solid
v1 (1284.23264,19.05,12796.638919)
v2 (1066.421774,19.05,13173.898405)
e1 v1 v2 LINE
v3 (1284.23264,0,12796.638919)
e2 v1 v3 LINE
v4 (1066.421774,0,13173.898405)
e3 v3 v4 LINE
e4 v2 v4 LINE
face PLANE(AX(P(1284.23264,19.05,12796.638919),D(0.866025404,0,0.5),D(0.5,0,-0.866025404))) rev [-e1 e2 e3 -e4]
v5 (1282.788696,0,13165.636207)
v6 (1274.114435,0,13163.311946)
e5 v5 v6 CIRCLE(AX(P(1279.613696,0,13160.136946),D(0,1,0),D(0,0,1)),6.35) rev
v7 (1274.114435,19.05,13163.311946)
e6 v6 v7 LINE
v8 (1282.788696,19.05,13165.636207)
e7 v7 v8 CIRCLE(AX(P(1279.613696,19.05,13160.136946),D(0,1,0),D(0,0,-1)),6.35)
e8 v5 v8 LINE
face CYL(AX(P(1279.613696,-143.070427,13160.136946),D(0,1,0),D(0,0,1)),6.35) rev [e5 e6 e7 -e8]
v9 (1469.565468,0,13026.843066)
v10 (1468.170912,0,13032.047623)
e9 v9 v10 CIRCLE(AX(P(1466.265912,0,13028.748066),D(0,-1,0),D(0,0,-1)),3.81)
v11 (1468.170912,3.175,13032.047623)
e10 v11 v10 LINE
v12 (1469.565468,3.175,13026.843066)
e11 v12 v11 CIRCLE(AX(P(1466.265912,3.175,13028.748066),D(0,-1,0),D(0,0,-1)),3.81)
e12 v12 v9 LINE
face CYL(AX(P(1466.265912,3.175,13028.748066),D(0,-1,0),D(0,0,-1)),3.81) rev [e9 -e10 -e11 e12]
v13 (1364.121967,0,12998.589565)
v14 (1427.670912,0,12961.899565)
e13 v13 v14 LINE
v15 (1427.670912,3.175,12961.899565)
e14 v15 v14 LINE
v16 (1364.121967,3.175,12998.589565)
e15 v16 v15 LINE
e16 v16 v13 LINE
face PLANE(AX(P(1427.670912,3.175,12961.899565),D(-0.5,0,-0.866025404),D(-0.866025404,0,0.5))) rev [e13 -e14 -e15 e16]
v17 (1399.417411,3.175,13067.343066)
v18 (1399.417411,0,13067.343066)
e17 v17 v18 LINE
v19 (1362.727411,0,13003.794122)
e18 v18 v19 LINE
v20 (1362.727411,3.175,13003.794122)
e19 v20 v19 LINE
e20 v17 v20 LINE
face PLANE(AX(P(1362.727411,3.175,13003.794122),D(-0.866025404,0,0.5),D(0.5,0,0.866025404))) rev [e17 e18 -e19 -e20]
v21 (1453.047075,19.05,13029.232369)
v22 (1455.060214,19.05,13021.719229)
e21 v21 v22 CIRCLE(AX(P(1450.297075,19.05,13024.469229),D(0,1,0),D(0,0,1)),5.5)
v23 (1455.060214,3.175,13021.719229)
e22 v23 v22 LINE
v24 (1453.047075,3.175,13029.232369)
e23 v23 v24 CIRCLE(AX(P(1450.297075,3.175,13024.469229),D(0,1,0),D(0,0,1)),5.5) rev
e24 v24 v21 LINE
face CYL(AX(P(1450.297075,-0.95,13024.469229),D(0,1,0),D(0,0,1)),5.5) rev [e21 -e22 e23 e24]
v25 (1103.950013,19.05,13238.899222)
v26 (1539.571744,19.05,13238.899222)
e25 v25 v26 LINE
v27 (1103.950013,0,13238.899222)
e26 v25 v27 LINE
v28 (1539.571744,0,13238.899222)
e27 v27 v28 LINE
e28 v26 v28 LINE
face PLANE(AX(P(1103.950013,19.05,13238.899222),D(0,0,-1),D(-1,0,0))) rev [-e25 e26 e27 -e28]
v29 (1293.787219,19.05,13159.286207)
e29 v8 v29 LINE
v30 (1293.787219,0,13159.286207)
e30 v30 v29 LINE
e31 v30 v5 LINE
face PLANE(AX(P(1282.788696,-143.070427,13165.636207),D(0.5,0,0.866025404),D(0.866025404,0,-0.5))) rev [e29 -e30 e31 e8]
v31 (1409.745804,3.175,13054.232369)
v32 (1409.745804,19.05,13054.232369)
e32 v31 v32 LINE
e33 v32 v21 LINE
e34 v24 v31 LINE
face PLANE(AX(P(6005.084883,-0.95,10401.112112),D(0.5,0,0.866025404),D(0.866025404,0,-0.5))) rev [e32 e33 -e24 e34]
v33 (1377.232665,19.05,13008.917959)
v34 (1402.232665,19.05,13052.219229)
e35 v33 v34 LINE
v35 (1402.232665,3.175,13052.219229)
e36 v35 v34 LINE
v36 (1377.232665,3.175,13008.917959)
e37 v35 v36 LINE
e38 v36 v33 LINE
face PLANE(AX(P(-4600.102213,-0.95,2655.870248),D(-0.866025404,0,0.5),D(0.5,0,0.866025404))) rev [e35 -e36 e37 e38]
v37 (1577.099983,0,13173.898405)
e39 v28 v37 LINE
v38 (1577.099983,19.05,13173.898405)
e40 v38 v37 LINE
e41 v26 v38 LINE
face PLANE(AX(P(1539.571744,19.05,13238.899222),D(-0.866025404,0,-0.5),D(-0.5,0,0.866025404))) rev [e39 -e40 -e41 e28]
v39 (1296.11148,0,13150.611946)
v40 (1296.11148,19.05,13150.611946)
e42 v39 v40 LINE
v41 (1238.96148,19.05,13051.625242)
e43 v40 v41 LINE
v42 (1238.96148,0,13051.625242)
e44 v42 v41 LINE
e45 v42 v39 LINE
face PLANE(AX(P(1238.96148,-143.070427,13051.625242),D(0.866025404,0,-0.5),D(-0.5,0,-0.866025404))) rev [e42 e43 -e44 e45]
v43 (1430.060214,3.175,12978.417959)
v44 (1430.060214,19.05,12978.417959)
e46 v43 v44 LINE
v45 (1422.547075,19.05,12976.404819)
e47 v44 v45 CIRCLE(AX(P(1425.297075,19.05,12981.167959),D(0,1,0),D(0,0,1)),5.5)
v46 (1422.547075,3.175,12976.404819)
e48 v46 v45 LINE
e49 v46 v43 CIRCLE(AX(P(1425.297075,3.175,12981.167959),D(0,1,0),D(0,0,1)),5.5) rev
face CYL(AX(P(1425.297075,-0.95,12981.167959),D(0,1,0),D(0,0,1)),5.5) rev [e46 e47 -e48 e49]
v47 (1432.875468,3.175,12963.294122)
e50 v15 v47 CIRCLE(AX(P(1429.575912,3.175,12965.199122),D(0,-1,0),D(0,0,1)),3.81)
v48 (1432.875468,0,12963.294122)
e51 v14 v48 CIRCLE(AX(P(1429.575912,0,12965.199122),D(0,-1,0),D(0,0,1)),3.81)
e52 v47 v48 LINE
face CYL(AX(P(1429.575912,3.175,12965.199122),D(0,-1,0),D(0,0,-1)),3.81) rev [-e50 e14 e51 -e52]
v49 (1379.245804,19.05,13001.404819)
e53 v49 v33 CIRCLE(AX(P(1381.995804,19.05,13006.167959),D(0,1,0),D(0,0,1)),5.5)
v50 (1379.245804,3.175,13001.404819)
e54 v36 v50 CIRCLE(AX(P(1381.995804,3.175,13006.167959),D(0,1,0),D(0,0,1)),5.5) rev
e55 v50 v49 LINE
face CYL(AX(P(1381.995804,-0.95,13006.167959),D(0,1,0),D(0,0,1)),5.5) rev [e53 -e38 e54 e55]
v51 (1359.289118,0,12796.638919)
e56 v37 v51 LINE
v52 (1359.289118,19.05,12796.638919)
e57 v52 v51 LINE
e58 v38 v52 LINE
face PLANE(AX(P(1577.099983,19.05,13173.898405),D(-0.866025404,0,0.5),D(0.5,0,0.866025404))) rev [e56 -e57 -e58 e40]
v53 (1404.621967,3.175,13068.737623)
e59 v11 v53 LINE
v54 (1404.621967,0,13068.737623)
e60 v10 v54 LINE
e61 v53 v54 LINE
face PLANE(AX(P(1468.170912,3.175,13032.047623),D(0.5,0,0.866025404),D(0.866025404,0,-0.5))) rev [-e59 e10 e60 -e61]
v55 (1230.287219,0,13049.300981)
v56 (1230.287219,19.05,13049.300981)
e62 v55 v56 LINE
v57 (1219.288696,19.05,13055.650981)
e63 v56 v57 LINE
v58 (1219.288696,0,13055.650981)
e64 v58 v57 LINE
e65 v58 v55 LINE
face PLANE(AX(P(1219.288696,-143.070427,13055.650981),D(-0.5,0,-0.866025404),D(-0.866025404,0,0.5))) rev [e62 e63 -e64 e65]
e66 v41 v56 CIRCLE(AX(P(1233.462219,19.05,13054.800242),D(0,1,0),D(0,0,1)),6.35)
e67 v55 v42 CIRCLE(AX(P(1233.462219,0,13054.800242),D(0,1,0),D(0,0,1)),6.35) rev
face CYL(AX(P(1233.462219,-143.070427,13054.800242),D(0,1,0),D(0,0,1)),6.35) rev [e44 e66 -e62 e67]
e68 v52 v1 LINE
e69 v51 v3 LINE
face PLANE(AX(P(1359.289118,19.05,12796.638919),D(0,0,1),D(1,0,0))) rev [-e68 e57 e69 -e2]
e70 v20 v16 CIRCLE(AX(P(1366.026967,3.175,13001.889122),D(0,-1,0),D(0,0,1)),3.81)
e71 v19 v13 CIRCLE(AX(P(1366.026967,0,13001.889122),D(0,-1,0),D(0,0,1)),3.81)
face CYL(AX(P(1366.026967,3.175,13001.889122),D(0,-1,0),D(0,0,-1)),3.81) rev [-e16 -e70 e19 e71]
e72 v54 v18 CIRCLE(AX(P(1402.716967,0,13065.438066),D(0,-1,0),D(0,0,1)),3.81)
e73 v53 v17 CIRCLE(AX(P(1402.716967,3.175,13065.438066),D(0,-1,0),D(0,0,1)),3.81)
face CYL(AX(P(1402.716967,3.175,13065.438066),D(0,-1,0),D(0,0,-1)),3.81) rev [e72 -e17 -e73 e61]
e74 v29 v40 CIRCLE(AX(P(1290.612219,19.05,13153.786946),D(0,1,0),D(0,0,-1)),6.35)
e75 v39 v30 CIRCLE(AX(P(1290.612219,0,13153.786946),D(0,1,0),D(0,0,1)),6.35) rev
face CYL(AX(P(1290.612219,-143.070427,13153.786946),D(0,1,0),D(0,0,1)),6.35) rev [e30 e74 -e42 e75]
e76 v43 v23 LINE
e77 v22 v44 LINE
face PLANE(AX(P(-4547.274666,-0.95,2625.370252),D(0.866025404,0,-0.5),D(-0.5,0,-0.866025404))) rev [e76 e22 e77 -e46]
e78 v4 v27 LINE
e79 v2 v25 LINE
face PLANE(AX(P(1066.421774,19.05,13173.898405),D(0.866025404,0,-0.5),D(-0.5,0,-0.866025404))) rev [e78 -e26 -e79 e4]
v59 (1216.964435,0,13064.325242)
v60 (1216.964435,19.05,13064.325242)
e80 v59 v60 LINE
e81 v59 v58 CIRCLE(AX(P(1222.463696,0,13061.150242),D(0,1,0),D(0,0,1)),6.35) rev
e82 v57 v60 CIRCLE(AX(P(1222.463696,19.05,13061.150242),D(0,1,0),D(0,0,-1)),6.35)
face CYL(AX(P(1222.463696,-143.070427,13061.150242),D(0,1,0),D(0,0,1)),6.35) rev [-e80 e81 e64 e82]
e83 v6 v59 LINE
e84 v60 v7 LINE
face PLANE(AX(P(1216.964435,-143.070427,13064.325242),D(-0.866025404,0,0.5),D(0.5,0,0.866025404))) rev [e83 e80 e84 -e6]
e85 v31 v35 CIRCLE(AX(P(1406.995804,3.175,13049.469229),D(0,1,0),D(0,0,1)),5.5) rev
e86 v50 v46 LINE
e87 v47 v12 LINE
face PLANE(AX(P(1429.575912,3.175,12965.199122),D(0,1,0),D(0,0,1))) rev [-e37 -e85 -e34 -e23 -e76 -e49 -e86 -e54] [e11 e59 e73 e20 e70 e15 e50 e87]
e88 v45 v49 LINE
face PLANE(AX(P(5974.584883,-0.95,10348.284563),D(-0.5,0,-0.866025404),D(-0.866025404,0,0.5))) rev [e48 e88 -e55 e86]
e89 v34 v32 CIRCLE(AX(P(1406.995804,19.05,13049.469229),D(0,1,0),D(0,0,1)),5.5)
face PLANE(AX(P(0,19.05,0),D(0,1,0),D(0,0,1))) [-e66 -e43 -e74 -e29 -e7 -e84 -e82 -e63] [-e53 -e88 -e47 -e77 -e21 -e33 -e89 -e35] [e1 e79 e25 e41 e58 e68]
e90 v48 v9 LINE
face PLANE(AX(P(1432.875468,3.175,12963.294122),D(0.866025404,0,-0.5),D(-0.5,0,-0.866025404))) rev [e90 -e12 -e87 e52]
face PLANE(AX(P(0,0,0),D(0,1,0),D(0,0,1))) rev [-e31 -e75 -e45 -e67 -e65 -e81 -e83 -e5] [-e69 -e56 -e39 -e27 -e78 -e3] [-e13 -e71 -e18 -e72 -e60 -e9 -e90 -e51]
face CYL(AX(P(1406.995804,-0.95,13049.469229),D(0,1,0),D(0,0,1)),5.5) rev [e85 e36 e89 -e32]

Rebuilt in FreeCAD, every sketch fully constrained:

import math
import FreeCAD as App
import Part
import Sketcher

V = App.Vector
Q = App.Units.Quantity

doc = App.newDocument("Part")
params = doc.addObject("Spreadsheet::Sheet", "Params")
for row, (alias, value) in enumerate([
    ("pad1_length", "0.75 in"),
    ("pocket1_length", "20 mm"),
    ("sketch3_radius", "0.15 in"),
    ("pocket2_length", "0.125 in"),
    ("sketch4_radius", "0.25 in"),
    ("sketch4_length", "4.5 in"),
    ("sketch4_length2", "0.5 in"),
    ("pocket3_length", "0.75 in"),
], start=1):
    params.set(f"A{row}", alias)
    params.set(f"B{row}", "=" + value)
    params.setAlias(f"B{row}", alias)

body = doc.addObject("PartDesign::Body", "Body")

# Sketch on XZ plane
sketch1 = body.newObject("Sketcher::SketchObject", "Sketch")
sketch1.AttachmentSupport = (doc.getObject("XZ_Plane"), [""])
sketch1.MapMode = "FlatFace"
sketch1.addGeometry(Part.LineSegment(V(1359, 12797, 0), V(1284, 12797, 0)), False)
sketch1.addGeometry(Part.LineSegment(V(1284, 12797, 0), V(1066, 13174, 0)), False)
sketch1.addGeometry(Part.LineSegment(V(1066, 13174, 0), V(1104, 13239, 0)), False)
sketch1.addGeometry(Part.LineSegment(V(1104, 13239, 0), V(1540, 13239, 0)), False)
sketch1.addGeometry(Part.LineSegment(V(1540, 13239, 0), V(1577, 13174, 0)), False)
sketch1.addGeometry(Part.LineSegment(V(1577, 13174, 0), V(1359, 12797, 0)), False)
sketch1.addConstraint(Sketcher.Constraint("Coincident", 0, 2, 1, 1))
sketch1.addConstraint(Sketcher.Constraint("Coincident", 1, 2, 2, 1))
sketch1.addConstraint(Sketcher.Constraint("Coincident", 2, 2, 3, 1))
sketch1.addConstraint(Sketcher.Constraint("Coincident", 3, 2, 4, 1))
sketch1.addConstraint(Sketcher.Constraint("Coincident", 4, 2, 5, 1))
sketch1.addConstraint(Sketcher.Constraint("Coincident", 5, 2, 0, 1))
sketch1.addConstraint(Sketcher.Constraint("Horizontal", 0))
sketch1.addConstraint(Sketcher.Constraint("Horizontal", 3))
sketch1.addConstraint(Sketcher.Constraint("Parallel", 1, 4))
sketch1.addConstraint(Sketcher.Constraint("Parallel", 2, 5))
sketch1.addConstraint(Sketcher.Constraint("Horizontal", 1, 2, 4, 2))
sketch1.addConstraint(Sketcher.Constraint("Equal", 2, 4))
sketch1.addConstraint(Sketcher.Constraint("Angle", 1, Q("120 deg")))
sketch1.addConstraint(Sketcher.Constraint("DistanceX", 0, 2, 0, 1, Q("75.056478 mm")))
sketch1.addConstraint(Sketcher.Constraint("DistanceX", 3, 1, 3, 2, Q("435.621731 mm")))
sketch1.addConstraint(Sketcher.Constraint("Distance", 1, Q("435.621731 mm")))
sketch1.addConstraint(Sketcher.Constraint("DistanceX", -1, 1, 0, 2, Q("1284.23264 mm")))
sketch1.addConstraint(Sketcher.Constraint("DistanceY", -1, 1, 0, 2, Q("12796.638919 mm")))
pad1 = body.newObject("PartDesign::Pad", "Pad")
pad1.Profile = sketch1
pad1.setExpression("Length", "Params.pad1_length")
pad1.Reversed = True

# Sketch on XZ plane
sketch2 = body.newObject("Sketcher::SketchObject", "Sketch001")
sketch2.AttachmentSupport = (doc.getObject("XZ_Plane"), [""])
sketch2.MapMode = "FlatFace"
sketch2.AttachmentOffset = App.Placement(V(0, 0, -0.75 * 25.4), App.Rotation())
sketch2.addGeometry(Part.LineSegment(V(1377, 13009, 0), V(1402, 13052, 0)), False)
sketch2.addGeometry(Part.ArcOfCircle(Part.Circle(V(1407, 13049, 0), V(0, 0, 1), 5), math.radians(60), math.radians(150)), False)
sketch2.addGeometry(Part.LineSegment(V(1410, 13054, 0), V(1453, 13029, 0)), False)
sketch2.addGeometry(Part.ArcOfCircle(Part.Circle(V(1450, 13024, 0), V(0, 0, 1), 5), math.radians(-30), math.radians(60)), False)
sketch2.addGeometry(Part.LineSegment(V(1455, 13022, 0), V(1430, 12978, 0)), False)
sketch2.addGeometry(Part.ArcOfCircle(Part.Circle(V(1425, 12981, 0), V(0, 0, 1), 5), math.radians(-120), math.radians(-30)), False)
sketch2.addGeometry(Part.LineSegment(V(1423, 12976, 0), V(1379, 13001, 0)), False)
sketch2.addGeometry(Part.ArcOfCircle(Part.Circle(V(1382, 13006, 0), V(0, 0, 1), 5), math.radians(150), math.radians(240)), False)
sketch2.addConstraint(Sketcher.Constraint("Tangent", 0, 2, 1, 2))
sketch2.addConstraint(Sketcher.Constraint("Tangent", 1, 1, 2, 1))
sketch2.addConstraint(Sketcher.Constraint("Tangent", 2, 2, 3, 2))
sketch2.addConstraint(Sketcher.Constraint("Tangent", 3, 1, 4, 1))
sketch2.addConstraint(Sketcher.Constraint("Tangent", 4, 2, 5, 2))
sketch2.addConstraint(Sketcher.Constraint("Tangent", 5, 1, 6, 1))
sketch2.addConstraint(Sketcher.Constraint("Tangent", 6, 2, 7, 2))
sketch2.addConstraint(Sketcher.Constraint("Tangent", 7, 1, 0, 1))
sketch2.addConstraint(Sketcher.Constraint("Equal", 1, 3))
sketch2.addConstraint(Sketcher.Constraint("Equal", 3, 5))
sketch2.addConstraint(Sketcher.Constraint("Equal", 5, 7))
sketch2.addConstraint(Sketcher.Constraint("Perpendicular", 0, 2))
sketch2.addConstraint(Sketcher.Constraint("Perpendicular", 2, 4))
sketch2.addConstraint(Sketcher.Constraint("Perpendicular", 4, 6))
sketch2.addConstraint(Sketcher.Constraint("Equal", 0, 2))
sketch2.addConstraint(Sketcher.Constraint("Angle", 0, Q("60 deg")))
sketch2.addConstraint(Sketcher.Constraint("Radius", 1, Q("5.5 mm")))
sketch2.addConstraint(Sketcher.Constraint("Distance", 0, Q("50 mm")))
sketch2.addConstraint(Sketcher.Constraint("DistanceY", -1, 1, 1, 3, Q("13049.469229 mm")))
sketch2.addConstraint(Sketcher.Constraint("DistanceX", -1, 1, 1, 3, Q("1406.995804 mm")))
pocket1 = body.newObject("PartDesign::Pocket", "Pocket")
pocket1.Profile = sketch2
pocket1.setExpression("Length", "Params.pocket1_length")
pocket1.Reversed = True

# Sketch on XZ plane
sketch3 = body.newObject("Sketcher::SketchObject", "Sketch002")
sketch3.AttachmentSupport = (doc.getObject("XZ_Plane"), [""])
sketch3.MapMode = "FlatFace"
sketch3.addGeometry(Part.LineSegment(V(1364.1, 12998.6, 0), V(1427.7, 12961.9, 0)), False)
sketch3.addGeometry(Part.ArcOfCircle(Part.Circle(V(1429.6, 12965.2, 0), V(0, 0, 1), 3.8), math.radians(-120), math.radians(-30)), False)
sketch3.addGeometry(Part.LineSegment(V(1432.9, 12963.3, 0), V(1469.6, 13026.8, 0)), False)
sketch3.addGeometry(Part.ArcOfCircle(Part.Circle(V(1466.3, 13028.7, 0), V(0, 0, 1), 3.8), math.radians(-30), math.radians(60)), False)
sketch3.addGeometry(Part.LineSegment(V(1468.2, 13032, 0), V(1404.6, 13068.7, 0)), False)
sketch3.addGeometry(Part.ArcOfCircle(Part.Circle(V(1402.7, 13065.4, 0), V(0, 0, 1), 3.8), math.radians(60), math.radians(150)), False)
sketch3.addGeometry(Part.LineSegment(V(1399.4, 13067.3, 0), V(1362.7, 13003.8, 0)), False)
sketch3.addGeometry(Part.ArcOfCircle(Part.Circle(V(1366, 13001.9, 0), V(0, 0, 1), 3.8), math.radians(150), math.radians(240)), False)
sketch3.addConstraint(Sketcher.Constraint("Tangent", 0, 2, 1, 1))
sketch3.addConstraint(Sketcher.Constraint("Tangent", 1, 2, 2, 1))
sketch3.addConstraint(Sketcher.Constraint("Tangent", 2, 2, 3, 1))
sketch3.addConstraint(Sketcher.Constraint("Tangent", 3, 2, 4, 1))
sketch3.addConstraint(Sketcher.Constraint("Tangent", 4, 2, 5, 1))
sketch3.addConstraint(Sketcher.Constraint("Tangent", 5, 2, 6, 1))
sketch3.addConstraint(Sketcher.Constraint("Tangent", 6, 2, 7, 1))
sketch3.addConstraint(Sketcher.Constraint("Tangent", 7, 2, 0, 1))
sketch3.addConstraint(Sketcher.Constraint("Equal", 1, 3))
sketch3.addConstraint(Sketcher.Constraint("Equal", 3, 5))
sketch3.addConstraint(Sketcher.Constraint("Equal", 5, 7))
sketch3.addConstraint(Sketcher.Constraint("Perpendicular", 0, 2))
sketch3.addConstraint(Sketcher.Constraint("Perpendicular", 2, 4))
sketch3.addConstraint(Sketcher.Constraint("Perpendicular", 4, 6))
sketch3.addConstraint(Sketcher.Constraint("Equal", 0, 2))
sketch3.addConstraint(Sketcher.Constraint("Radius", 1, Q("0.15 in")))
sketch3.addConstraint(Sketcher.Constraint("Angle", 0, Q("-30 deg")))
sketch3.addConstraint(Sketcher.Constraint("Distance", 0, Q("73.38 mm")))
sketch3.addConstraint(Sketcher.Constraint("DistanceX", -1, 1, 1, 3, Q("1429.575912 mm")))
sketch3.addConstraint(Sketcher.Constraint("DistanceY", -1, 1, 1, 3, Q("12965.199122 mm")))
sketch3.setExpression("Constraints[15]", "Params.sketch3_radius")
pocket2 = body.newObject("PartDesign::Pocket", "Pocket001")
pocket2.Profile = sketch3
pocket2.setExpression("Length", "Params.pocket2_length")

# Sketch on XZ plane
sketch4 = body.newObject("Sketcher::SketchObject", "Sketch003")
sketch4.AttachmentSupport = (doc.getObject("XZ_Plane"), [""])
sketch4.MapMode = "FlatFace"
sketch4.AttachmentOffset = App.Placement(V(0, 0, -0.75 * 25.4), App.Rotation())
sketch4.addGeometry(Part.LineSegment(V(1217, 13064, 0), V(1274, 13163, 0)), False)
sketch4.addGeometry(Part.ArcOfCircle(Part.Circle(V(1280, 13160, 0), V(0, 0, 1), 6), math.radians(60), math.radians(150)), False)
sketch4.addGeometry(Part.LineSegment(V(1283, 13166, 0), V(1294, 13159, 0)), False)
sketch4.addGeometry(Part.ArcOfCircle(Part.Circle(V(1291, 13154, 0), V(0, 0, 1), 6), math.radians(-30), math.radians(60)), False)
sketch4.addGeometry(Part.LineSegment(V(1296, 13151, 0), V(1239, 13052, 0)), False)
sketch4.addGeometry(Part.ArcOfCircle(Part.Circle(V(1233, 13055, 0), V(0, 0, 1), 6), math.radians(-120), math.radians(-30)), False)
sketch4.addGeometry(Part.LineSegment(V(1230, 13049, 0), V(1219, 13056, 0)), False)
sketch4.addGeometry(Part.ArcOfCircle(Part.Circle(V(1222, 13061, 0), V(0, 0, 1), 6), math.radians(150), math.radians(240)), False)
sketch4.addConstraint(Sketcher.Constraint("Tangent", 0, 2, 1, 2))
sketch4.addConstraint(Sketcher.Constraint("Tangent", 1, 1, 2, 1))
sketch4.addConstraint(Sketcher.Constraint("Tangent", 2, 2, 3, 2))
sketch4.addConstraint(Sketcher.Constraint("Tangent", 3, 1, 4, 1))
sketch4.addConstraint(Sketcher.Constraint("Tangent", 4, 2, 5, 2))
sketch4.addConstraint(Sketcher.Constraint("Tangent", 5, 1, 6, 1))
sketch4.addConstraint(Sketcher.Constraint("Tangent", 6, 2, 7, 2))
sketch4.addConstraint(Sketcher.Constraint("Tangent", 7, 1, 0, 1))
sketch4.addConstraint(Sketcher.Constraint("Equal", 1, 3))
sketch4.addConstraint(Sketcher.Constraint("Equal", 3, 5))
sketch4.addConstraint(Sketcher.Constraint("Equal", 5, 7))
sketch4.addConstraint(Sketcher.Constraint("Perpendicular", 0, 2))
sketch4.addConstraint(Sketcher.Constraint("Perpendicular", 2, 4))
sketch4.addConstraint(Sketcher.Constraint("Perpendicular", 4, 6))
sketch4.addConstraint(Sketcher.Constraint("Radius", 1, Q("0.25 in")))
sketch4.addConstraint(Sketcher.Constraint("Angle", 0, Q("60 deg")))
sketch4.addConstraint(Sketcher.Constraint("Distance", 0, Q("4.5 in")))
sketch4.addConstraint(Sketcher.Constraint("Distance", 2, Q("0.5 in")))
sketch4.addConstraint(Sketcher.Constraint("DistanceX", -1, 1, 3, 3, Q("1290.612219 mm")))
sketch4.addConstraint(Sketcher.Constraint("DistanceY", -1, 1, 5, 1, Q("13049.300981 mm")))
sketch4.setExpression("Constraints[14]", "Params.sketch4_radius")
sketch4.setExpression("Constraints[16]", "Params.sketch4_length")
sketch4.setExpression("Constraints[17]", "Params.sketch4_length2")
pocket3 = body.newObject("PartDesign::Pocket", "Pocket002")
pocket3.Profile = sketch4
pocket3.setExpression("Length", "Params.pocket3_length")
pocket3.Reversed = True

doc.recompute()
